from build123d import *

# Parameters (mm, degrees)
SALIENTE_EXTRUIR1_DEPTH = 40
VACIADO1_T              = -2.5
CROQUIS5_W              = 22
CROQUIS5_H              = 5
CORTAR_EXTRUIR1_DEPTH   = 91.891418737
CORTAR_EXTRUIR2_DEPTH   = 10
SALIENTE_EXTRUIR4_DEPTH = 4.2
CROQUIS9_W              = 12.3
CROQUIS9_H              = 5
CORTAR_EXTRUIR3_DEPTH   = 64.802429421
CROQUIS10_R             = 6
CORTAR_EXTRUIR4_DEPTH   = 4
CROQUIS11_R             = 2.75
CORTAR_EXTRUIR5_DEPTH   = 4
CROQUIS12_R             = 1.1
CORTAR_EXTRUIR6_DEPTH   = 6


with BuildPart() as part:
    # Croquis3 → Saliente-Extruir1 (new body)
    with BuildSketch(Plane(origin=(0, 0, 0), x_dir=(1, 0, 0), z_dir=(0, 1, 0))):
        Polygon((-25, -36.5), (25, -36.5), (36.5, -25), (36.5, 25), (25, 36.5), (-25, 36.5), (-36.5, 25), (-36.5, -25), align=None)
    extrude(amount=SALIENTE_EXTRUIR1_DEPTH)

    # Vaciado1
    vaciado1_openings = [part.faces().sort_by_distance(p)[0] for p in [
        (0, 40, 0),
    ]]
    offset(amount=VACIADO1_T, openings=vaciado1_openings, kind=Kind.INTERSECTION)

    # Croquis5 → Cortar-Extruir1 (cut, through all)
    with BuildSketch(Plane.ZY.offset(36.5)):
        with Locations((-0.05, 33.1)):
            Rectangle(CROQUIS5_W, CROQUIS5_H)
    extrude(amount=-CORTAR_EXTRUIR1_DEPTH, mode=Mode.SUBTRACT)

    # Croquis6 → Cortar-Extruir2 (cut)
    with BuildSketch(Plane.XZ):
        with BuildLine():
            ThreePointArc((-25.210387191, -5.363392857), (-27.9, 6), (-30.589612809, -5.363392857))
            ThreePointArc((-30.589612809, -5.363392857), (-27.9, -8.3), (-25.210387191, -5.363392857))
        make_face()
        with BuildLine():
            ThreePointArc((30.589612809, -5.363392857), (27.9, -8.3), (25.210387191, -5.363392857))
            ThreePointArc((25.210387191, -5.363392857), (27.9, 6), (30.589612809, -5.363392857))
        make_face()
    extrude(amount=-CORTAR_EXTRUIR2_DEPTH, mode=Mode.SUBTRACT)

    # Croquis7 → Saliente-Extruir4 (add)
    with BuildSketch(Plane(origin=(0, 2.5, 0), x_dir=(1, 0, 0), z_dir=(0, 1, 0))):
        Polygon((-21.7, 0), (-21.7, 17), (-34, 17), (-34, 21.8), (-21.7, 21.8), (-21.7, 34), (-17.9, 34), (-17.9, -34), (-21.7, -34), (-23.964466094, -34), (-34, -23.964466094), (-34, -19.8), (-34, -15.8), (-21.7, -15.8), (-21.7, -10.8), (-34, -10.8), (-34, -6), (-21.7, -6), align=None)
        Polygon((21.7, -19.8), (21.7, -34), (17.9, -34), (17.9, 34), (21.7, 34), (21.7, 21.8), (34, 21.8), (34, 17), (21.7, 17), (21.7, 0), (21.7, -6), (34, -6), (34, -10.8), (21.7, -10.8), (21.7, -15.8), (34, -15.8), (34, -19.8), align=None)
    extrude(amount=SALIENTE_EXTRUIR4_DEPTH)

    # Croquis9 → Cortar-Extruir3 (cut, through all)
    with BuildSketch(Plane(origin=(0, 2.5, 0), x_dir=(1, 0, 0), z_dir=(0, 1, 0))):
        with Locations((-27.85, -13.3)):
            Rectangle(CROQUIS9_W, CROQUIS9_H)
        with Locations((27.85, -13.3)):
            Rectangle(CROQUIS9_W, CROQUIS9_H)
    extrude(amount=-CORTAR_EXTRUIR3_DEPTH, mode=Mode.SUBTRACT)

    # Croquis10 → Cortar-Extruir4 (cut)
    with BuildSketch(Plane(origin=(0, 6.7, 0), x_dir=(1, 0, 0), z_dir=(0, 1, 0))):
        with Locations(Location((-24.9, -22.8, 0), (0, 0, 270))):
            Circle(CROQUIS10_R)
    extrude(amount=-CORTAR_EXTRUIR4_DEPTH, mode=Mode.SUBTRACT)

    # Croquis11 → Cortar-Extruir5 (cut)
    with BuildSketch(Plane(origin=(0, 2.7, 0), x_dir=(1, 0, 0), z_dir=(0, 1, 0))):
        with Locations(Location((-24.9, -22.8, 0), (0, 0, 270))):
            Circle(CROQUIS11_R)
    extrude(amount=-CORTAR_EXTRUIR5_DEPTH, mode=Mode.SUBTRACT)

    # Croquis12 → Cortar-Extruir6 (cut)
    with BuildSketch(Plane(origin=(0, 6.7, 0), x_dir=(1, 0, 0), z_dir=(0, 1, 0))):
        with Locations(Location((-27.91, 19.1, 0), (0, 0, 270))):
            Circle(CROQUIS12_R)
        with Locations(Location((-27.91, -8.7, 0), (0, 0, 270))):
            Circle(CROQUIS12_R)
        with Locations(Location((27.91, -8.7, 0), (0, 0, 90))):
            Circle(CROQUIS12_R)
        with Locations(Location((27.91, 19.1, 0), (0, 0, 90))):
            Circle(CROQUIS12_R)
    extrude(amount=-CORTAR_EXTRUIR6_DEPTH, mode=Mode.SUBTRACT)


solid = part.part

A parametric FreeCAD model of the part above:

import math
import FreeCAD as App
import Part
import Sketcher
Q = App.Units.Quantity


def faces_at(feature, points):
    """Names of the faces that lie closest to the given points."""
    faces = feature.Shape.Faces
    near = lambda p: min(range(len(faces)), key=lambda i: faces[i].distToShape(Part.Vertex(*p))[0])
    return sorted({f"Face{near(p) + 1}" for p in points})

doc = App.newDocument("Part")
body = doc.addObject("PartDesign::Body", "Body")

# Sketch on XZ plane
sketch1 = body.newObject("Sketcher::SketchObject", "Sketch")
sketch1.AttachmentSupport = (doc.getObject("XZ_Plane"), [""])
sketch1.MapMode = "FlatFace"
sketch1.addGeometry(Part.LineSegment(App.Vector(-25, 36, 0), App.Vector(25, 36, 0)), False)
sketch1.addGeometry(Part.LineSegment(App.Vector(25, 36, 0), App.Vector(36, 25, 0)), False)
sketch1.addGeometry(Part.LineSegment(App.Vector(36, 25, 0), App.Vector(36, -25, 0)), False)
sketch1.addGeometry(Part.LineSegment(App.Vector(36, -25, 0), App.Vector(25, -36, 0)), False)
sketch1.addGeometry(Part.LineSegment(App.Vector(25, -36, 0), App.Vector(-25, -36, 0)), False)
sketch1.addGeometry(Part.LineSegment(App.Vector(-25, -36, 0), App.Vector(-36, -25, 0)), False)
sketch1.addGeometry(Part.LineSegment(App.Vector(-36, -25, 0), App.Vector(-36, 25, 0)), False)
sketch1.addGeometry(Part.LineSegment(App.Vector(-36, 25, 0), App.Vector(-25, 36, 0)), False)
sketch1.addConstraint(Sketcher.Constraint("Coincident", 0, 2, 1, 1))
sketch1.addConstraint(Sketcher.Constraint("Coincident", 1, 2, 2, 1))
sketch1.addConstraint(Sketcher.Constraint("Coincident", 2, 2, 3, 1))
sketch1.addConstraint(Sketcher.Constraint("Coincident", 3, 2, 4, 1))
sketch1.addConstraint(Sketcher.Constraint("Coincident", 4, 2, 5, 1))
sketch1.addConstraint(Sketcher.Constraint("Coincident", 5, 2, 6, 1))
sketch1.addConstraint(Sketcher.Constraint("Coincident", 6, 2, 7, 1))
sketch1.addConstraint(Sketcher.Constraint("Coincident", 7, 2, 0, 1))
sketch1.addConstraint(Sketcher.Constraint("Horizontal", 0))
sketch1.addConstraint(Sketcher.Constraint("Vertical", 2))
sketch1.addConstraint(Sketcher.Constraint("Horizontal", 4))
sketch1.addConstraint(Sketcher.Constraint("Vertical", 6))
sketch1.addConstraint(Sketcher.Constraint("Symmetric", 0, 2, 4, 2, -1, 1))
sketch1.addConstraint(Sketcher.Constraint("Symmetric", 1, 2, 5, 2, -1, 1))
sketch1.addConstraint(Sketcher.Constraint("Perpendicular", 1, 3))
sketch1.addConstraint(Sketcher.Constraint("Perpendicular", 5, 7))
sketch1.addConstraint(Sketcher.Constraint("Horizontal", 2, 2, 5, 2))
sketch1.addConstraint(Sketcher.Constraint("Horizontal", 1, 2, 6, 2))
sketch1.addConstraint(Sketcher.Constraint("Vertical", 0, 2, 3, 2))
sketch1.addConstraint(Sketcher.Constraint("Equal", 4, 2))
sketch1.addConstraint(Sketcher.Constraint("DistanceX", 0, 1, 0, 2, Q("50 mm")))
sketch1.addConstraint(Sketcher.Constraint("DistanceY", 3, 2, 0, 2, Q("73 mm")))
pad1 = body.newObject("PartDesign::Pad", "Pad")
pad1.Profile = sketch1
pad1.Length = 40
pad1.Reversed = True
doc.recompute()

thickness = body.newObject("PartDesign::Thickness", "Thickness")
thickness.Base = (pad1, faces_at(pad1, [(0, 40, 0)]))
thickness.Value = 2.5
thickness.Reversed = True
thickness.Join = "Intersection"

# Sketch on YZ plane
sketch2 = body.newObject("Sketcher::SketchObject", "Sketch001")
sketch2.AttachmentSupport = (doc.getObject("YZ_Plane"), [""])
sketch2.MapMode = "FlatFace"
sketch2.AttachmentOffset = App.Placement(App.Vector(0, 0, -36.5), App.Rotation())
sketch2.addGeometry(Part.LineSegment(App.Vector(36, -11, 0), App.Vector(31, -11, 0)), False)
sketch2.addGeometry(Part.LineSegment(App.Vector(31, -11, 0), App.Vector(31, 11, 0)), False)
sketch2.addGeometry(Part.LineSegment(App.Vector(31, 11, 0), App.Vector(36, 11, 0)), False)
sketch2.addGeometry(Part.LineSegment(App.Vector(36, 11, 0), App.Vector(36, -11, 0)), False)
sketch2.addConstraint(Sketcher.Constraint("Coincident", 0, 2, 1, 1))
sketch2.addConstraint(Sketcher.Constraint("Coincident", 1, 2, 2, 1))
sketch2.addConstraint(Sketcher.Constraint("Coincident", 2, 2, 3, 1))
sketch2.addConstraint(Sketcher.Constraint("Coincident", 3, 2, 0, 1))
sketch2.addConstraint(Sketcher.Constraint("Horizontal", 0))
sketch2.addConstraint(Sketcher.Constraint("Vertical", 1))
sketch2.addConstraint(Sketcher.Constraint("Horizontal", 2))
sketch2.addConstraint(Sketcher.Constraint("Vertical", 3))
sketch2.addConstraint(Sketcher.Constraint("DistanceX", 0, 2, 0, 1, Q("5 mm")))
sketch2.addConstraint(Sketcher.Constraint("DistanceY", 1, 1, 1, 2, Q("22 mm")))
sketch2.addConstraint(Sketcher.Constraint("DistanceX", -1, 1, 0, 2, Q("30.6 mm")))
sketch2.addConstraint(Sketcher.Constraint("DistanceY", 0, 2, -1, 1, Q("11.05 mm")))
pocket1 = body.newObject("PartDesign::Pocket", "Pocket")
pocket1.Profile = sketch2
pocket1.Type = "ThroughAll"
pocket1.Reversed = True

# Sketch on XZ plane
sketch3 = body.newObject("Sketcher::SketchObject", "Sketch002")
sketch3.AttachmentSupport = (doc.getObject("XZ_Plane"), [""])
sketch3.MapMode = "FlatFace"
sketch3.addGeometry(Part.ArcOfCircle(Part.Circle(App.Vector(-27.9, 0, 0), App.Vector(0, 0, 1), 6), math.radians(-63), math.radians(243)), False)
sketch3.addGeometry(Part.ArcOfCircle(Part.Circle(App.Vector(-27.9, -5.6, 0), App.Vector(0, 0, 1), 2.7), math.radians(175), math.radians(365)), False)
sketch3.addGeometry(Part.ArcOfCircle(Part.Circle(App.Vector(27.9, -5.6, 0), App.Vector(0, 0, 1), 2.7), math.radians(175), math.radians(365)), False)
sketch3.addGeometry(Part.ArcOfCircle(Part.Circle(App.Vector(27.9, 0, 0), App.Vector(0, 0, 1), 6), math.radians(-63), math.radians(243)), False)
sketch3.addConstraint(Sketcher.Constraint("Coincident", 0, 1, 1, 2))
sketch3.addConstraint(Sketcher.Constraint("Coincident", 1, 1, 0, 2))
sketch3.addConstraint(Sketcher.Constraint("Coincident", 2, 1, 3, 2))
sketch3.addConstraint(Sketcher.Constraint("Coincident", 3, 1, 2, 2))
sketch3.addConstraint(Sketcher.Constraint("Equal", 1, 2))
sketch3.addConstraint(Sketcher.Constraint("Equal", 0, 3))
sketch3.addConstraint(Sketcher.Constraint("Symmetric", 0, 3, 3, 3, -1, 1))
sketch3.addConstraint(Sketcher.Constraint("Symmetric", 1, 3, 2, 3, -2))
sketch3.addConstraint(Sketcher.Constraint("PointOnObject", 0, 3, -1))
sketch3.addConstraint(Sketcher.Constraint("Horizontal", 0, 1, 1, 1))
sketch3.addConstraint(Sketcher.Constraint("Radius", 0, Q("6 mm")))
sketch3.addConstraint(Sketcher.Constraint("Radius", 1, Q("2.7 mm")))
sketch3.addConstraint(Sketcher.Constraint("DistanceX", 0, 3, -1, 1, Q("27.9 mm")))
sketch3.addConstraint(Sketcher.Constraint("DistanceY", 1, 3, -1, 1, Q("5.6 mm")))
pocket2 = body.newObject("PartDesign::Pocket", "Pocket001")
pocket2.Profile = sketch3
pocket2.Length = 10

# Sketch on XZ plane
sketch4 = body.newObject("Sketcher::SketchObject", "Sketch003")
sketch4.AttachmentSupport = (doc.getObject("XZ_Plane"), [""])
sketch4.MapMode = "FlatFace"
sketch4.AttachmentOffset = App.Placement(App.Vector(0, 0, -2.5), App.Rotation())
sketch4.addGeometry(Part.LineSegment(App.Vector(-21.7, -17, 0), App.Vector(-21.7, 6, 0)), False)
sketch4.addGeometry(Part.LineSegment(App.Vector(-21.7, 6, 0), App.Vector(-34, 6, 0)), False)
sketch4.addGeometry(Part.LineSegment(App.Vector(-34, 6, 0), App.Vector(-34, 10.8, 0)), False)
sketch4.addGeometry(Part.LineSegment(App.Vector(-34, 10.8, 0), App.Vector(-21.7, 10.8, 0)), False)
sketch4.addGeometry(Part.LineSegment(App.Vector(-21.7, 10.8, 0), App.Vector(-21.7, 15.8, 0)), False)
sketch4.addGeometry(Part.LineSegment(App.Vector(-21.7, 15.8, 0), App.Vector(-34, 15.8, 0)), False)
sketch4.addGeometry(Part.LineSegment(App.Vector(-34, 15.8, 0), App.Vector(-34, 24, 0)), False)
sketch4.addGeometry(Part.LineSegment(App.Vector(-34, 24, 0), App.Vector(-24, 34, 0)), False)
sketch4.addGeometry(Part.LineSegment(App.Vector(-24, 34, 0), App.Vector(-17.9, 34, 0)), False)
sketch4.addGeometry(Part.LineSegment(App.Vector(-17.9, 34, 0), App.Vector(-17.9, -34, 0)), False)
sketch4.addGeometry(Part.LineSegment(App.Vector(-17.9, -34, 0), App.Vector(-21.7, -34, 0)), False)
sketch4.addGeometry(Part.LineSegment(App.Vector(-21.7, -34, 0), App.Vector(-21.7, -21.8, 0)), False)
sketch4.addGeometry(Part.LineSegment(App.Vector(-21.7, -21.8, 0), App.Vector(-34, -21.8, 0)), False)
sketch4.addGeometry(Part.LineSegment(App.Vector(-34, -21.8, 0), App.Vector(-34, -17, 0)), False)
sketch4.addGeometry(Part.LineSegment(App.Vector(-34, -17, 0), App.Vector(-21.7, -17, 0)), False)
sketch4.addGeometry(Part.LineSegment(App.Vector(21.7, 34, 0), App.Vector(21.7, 19.8, 0)), False)
sketch4.addGeometry(Part.LineSegment(App.Vector(21.7, 19.8, 0), App.Vector(34, 19.8, 0)), False)
sketch4.addGeometry(Part.LineSegment(App.Vector(34, 19.8, 0), App.Vector(34, 15.8, 0)), False)
sketch4.addGeometry(Part.LineSegment(App.Vector(34, 15.8, 0), App.Vector(21.7, 15.8, 0)), False)
sketch4.addGeometry(Part.LineSegment(App.Vector(21.7, 15.8, 0), App.Vector(21.7, 10.8, 0)), False)
sketch4.addGeometry(Part.LineSegment(App.Vector(21.7, 10.8, 0), App.Vector(34, 10.8, 0)), False)
sketch4.addGeometry(Part.LineSegment(App.Vector(34, 10.8, 0), App.Vector(34, 6, 0)), False)
sketch4.addGeometry(Part.LineSegment(App.Vector(34, 6, 0), App.Vector(21.7, 6, 0)), False)
sketch4.addGeometry(Part.LineSegment(App.Vector(21.7, 6, 0), App.Vector(21.7, -17, 0)), False)
sketch4.addGeometry(Part.LineSegment(App.Vector(21.7, -17, 0), App.Vector(34, -17, 0)), False)
sketch4.addGeometry(Part.LineSegment(App.Vector(34, -17, 0), App.Vector(34, -21.8, 0)), False)
sketch4.addGeometry(Part.LineSegment(App.Vector(34, -21.8, 0), App.Vector(21.7, -21.8, 0)), False)
sketch4.addGeometry(Part.LineSegment(App.Vector(21.7, -21.8, 0), App.Vector(21.7, -34, 0)), False)
sketch4.addGeometry(Part.LineSegment(App.Vector(21.7, -34, 0), App.Vector(17.9, -34, 0)), False)
sketch4.addGeometry(Part.LineSegment(App.Vector(17.9, -34, 0), App.Vector(17.9, 34, 0)), False)
sketch4.addGeometry(Part.LineSegment(App.Vector(17.9, 34, 0), App.Vector(21.7, 34, 0)), False)
sketch4.addConstraint(Sketcher.Constraint("Coincident", 0, 2, 1, 1))
sketch4.addConstraint(Sketcher.Constraint("Coincident", 1, 2, 2, 1))
sketch4.addConstraint(Sketcher.Constraint("Coincident", 2, 2, 3, 1))
sketch4.addConstraint(Sketcher.Constraint("Coincident", 3, 2, 4, 1))
sketch4.addConstraint(Sketcher.Constraint("Coincident", 4, 2, 5, 1))
sketch4.addConstraint(Sketcher.Constraint("Coincident", 5, 2, 6, 1))
sketch4.addConstraint(Sketcher.Constraint("Coincident", 6, 2, 7, 1))
sketch4.addConstraint(Sketcher.Constraint("Coincident", 7, 2, 8, 1))
sketch4.addConstraint(Sketcher.Constraint("Coincident", 8, 2, 9, 1))
sketch4.addConstraint(Sketcher.Constraint("Coincident", 9, 2, 10, 1))
sketch4.addConstraint(Sketcher.Constraint("Coincident", 10, 2, 11, 1))
sketch4.addConstraint(Sketcher.Constraint("Coincident", 11, 2, 12, 1))
sketch4.addConstraint(Sketcher.Constraint("Coincident", 12, 2, 13, 1))
sketch4.addConstraint(Sketcher.Constraint("Coincident", 13, 2, 14, 1))
sketch4.addConstraint(Sketcher.Constraint("Coincident", 14, 2, 0, 1))
sketch4.addConstraint(Sketcher.Constraint("Coincident", 15, 2, 16, 1))
sketch4.addConstraint(Sketcher.Constraint("Coincident", 16, 2, 17, 1))
sketch4.addConstraint(Sketcher.Constraint("Coincident", 17, 2, 18, 1))
sketch4.addConstraint(Sketcher.Constraint("Coincident", 18, 2, 19, 1))
sketch4.addConstraint(Sketcher.Constraint("Coincident", 19, 2, 20, 1))
sketch4.addConstraint(Sketcher.Constraint("Coincident", 20, 2, 21, 1))
sketch4.addConstraint(Sketcher.Constraint("Coincident", 21, 2, 22, 1))
sketch4.addConstraint(Sketcher.Constraint("Coincident", 22, 2, 23, 1))
sketch4.addConstraint(Sketcher.Constraint("Coincident", 23, 2, 24, 1))
sketch4.addConstraint(Sketcher.Constraint("Coincident", 24, 2, 25, 1))
sketch4.addConstraint(Sketcher.Constraint("Coincident", 25, 2, 26, 1))
sketch4.addConstraint(Sketcher.Constraint("Coincident", 26, 2, 27, 1))
sketch4.addConstraint(Sketcher.Constraint("Coincident", 27, 2, 28, 1))
sketch4.addConstraint(Sketcher.Constraint("Coincident", 28, 2, 29, 1))
sketch4.addConstraint(Sketcher.Constraint("Coincident", 29, 2, 30, 1))
sketch4.addConstraint(Sketcher.Constraint("Coincident", 30, 2, 15, 1))
sketch4.addConstraint(Sketcher.Constraint("Vertical", 0))
sketch4.addConstraint(Sketcher.Constraint("Horizontal", 1))
sketch4.addConstraint(Sketcher.Constraint("Vertical", 2))
sketch4.addConstraint(Sketcher.Constraint("Horizontal", 3))
sketch4.addConstraint(Sketcher.Constraint("Vertical", 4))
sketch4.addConstraint(Sketcher.Constraint("Horizontal", 5))
sketch4.addConstraint(Sketcher.Constraint("Vertical", 6))
sketch4.addConstraint(Sketcher.Constraint("Horizontal", 8))
sketch4.addConstraint(Sketcher.Constraint("Vertical", 9))
sketch4.addConstraint(Sketcher.Constraint("Horizontal", 10))
sketch4.addConstraint(Sketcher.Constraint("Vertical", 11))
sketch4.addConstraint(Sketcher.Constraint("Horizontal", 12))
sketch4.addConstraint(Sketcher.Constraint("Vertical", 13))
sketch4.addConstraint(Sketcher.Constraint("Horizontal", 14))
sketch4.addConstraint(Sketcher.Constraint("Vertical", 15))
sketch4.addConstraint(Sketcher.Constraint("Horizontal", 16))
sketch4.addConstraint(Sketcher.Constraint("Vertical", 17))
sketch4.addConstraint(Sketcher.Constraint("Horizontal", 18))
sketch4.addConstraint(Sketcher.Constraint("Vertical", 19))
sketch4.addConstraint(Sketcher.Constraint("Horizontal", 20))
sketch4.addConstraint(Sketcher.Constraint("Vertical", 21))
sketch4.addConstraint(Sketcher.Constraint("Horizontal", 22))
sketch4.addConstraint(Sketcher.Constraint("Vertical", 23))
sketch4.addConstraint(Sketcher.Constraint("Horizontal", 24))
sketch4.addConstraint(Sketcher.Constraint("Vertical", 25))
sketch4.addConstraint(Sketcher.Constraint("Horizontal", 26))
sketch4.addConstraint(Sketcher.Constraint("Vertical", 27))
sketch4.addConstraint(Sketcher.Constraint("Horizontal", 28))
sketch4.addConstraint(Sketcher.Constraint("Vertical", 29))
sketch4.addConstraint(Sketcher.Constraint("Horizontal", 30))
sketch4.addConstraint(Sketcher.Constraint("Symmetric", 8, 2, 28, 2, -1, 1))
sketch4.addConstraint(Sketcher.Constraint("Symmetric", 10, 2, 30, 2, -1, 1))
sketch4.addConstraint(Sketcher.Constraint("Symmetric", 5, 2, 17, 2, -2))
sketch4.addConstraint(Sketcher.Constraint("Symmetric", 3, 2, 19, 2, -2))
sketch4.addConstraint(Sketcher.Constraint("Symmetric", 1, 2, 21, 2, -2))
sketch4.addConstraint(Sketcher.Constraint("Symmetric", 14, 2, 23, 2, -2))
sketch4.addConstraint(Sketcher.Constraint("Symmetric", 12, 2, 25, 2, -2))
sketch4.addConstraint(Sketcher.Constraint("Symmetric", 10, 2, 27, 2, -2))
sketch4.addConstraint(Sketcher.Constraint("Vertical", 0, 2, 3, 2))
sketch4.addConstraint(Sketcher.Constraint("Vertical", 2, 2, 5, 2))
sketch4.addConstraint(Sketcher.Constraint("Vertical", 4, 2, 10, 2))
sketch4.addConstraint(Sketcher.Constraint("Vertical", 6, 2, 12, 2))
sketch4.addConstraint(Sketcher.Constraint("Equal", 2, 13))
sketch4.addConstraint(Sketcher.Constraint("DistanceY", 0, 1, 0, 2, Q("23 mm")))
sketch4.addConstraint(Sketcher.Constraint("DistanceY", 4, 1, 4, 2, Q("5 mm")))
sketch4.addConstraint(Sketcher.Constraint("DistanceY", 9, 2, 9, 1, Q("68 mm")))
sketch4.addConstraint(Sketcher.Constraint("DistanceY", 17, 2, 17, 1, Q("4 mm")))
sketch4.addConstraint(Sketcher.Constraint("Angle", 7, Q("45 deg")))
sketch4.addConstraint(Sketcher.Constraint("DistanceX", 1, 2, 1, 1, Q("12.3 mm")))
sketch4.addConstraint(Sketcher.Constraint("DistanceX", 10, 2, 10, 1, Q("3.8 mm")))
sketch4.addConstraint(Sketcher.Constraint("DistanceY", 2, 1, 2, 2, Q("4.8 mm")))
sketch4.addConstraint(Sketcher.Constraint("DistanceY", 11, 1, 11, 2, Q("12.2 mm")))
sketch4.addConstraint(Sketcher.Constraint("DistanceX", 1, 2, -1, 1, Q("34 mm")))
sketch4.addConstraint(Sketcher.Constraint("Distance", 7, Q("14.192388 mm")))
pad2 = body.newObject("PartDesign::Pad", "Pad001")
pad2.Profile = sketch4
pad2.Length = 4.2
pad2.Reversed = True

# Sketch on XZ plane
sketch5 = body.newObject("Sketcher::SketchObject", "Sketch004")
sketch5.AttachmentSupport = (doc.getObject("XZ_Plane"), [""])
sketch5.MapMode = "FlatFace"
sketch5.AttachmentOffset = App.Placement(App.Vector(0, 0, -2.5), App.Rotation())
sketch5.addGeometry(Part.LineSegment(App.Vector(-34, 11, 0), App.Vector(-34, 16, 0)), False)
sketch5.addGeometry(Part.LineSegment(App.Vector(-34, 16, 0), App.Vector(-22, 16, 0)), False)
sketch5.addGeometry(Part.LineSegment(App.Vector(-22, 16, 0), App.Vector(-22, 11, 0)), False)
sketch5.addGeometry(Part.LineSegment(App.Vector(-22, 11, 0), App.Vector(-34, 11, 0)), False)
sketch5.addGeometry(Part.LineSegment(App.Vector(22, 11, 0), App.Vector(22, 16, 0)), False)
sketch5.addGeometry(Part.LineSegment(App.Vector(22, 16, 0), App.Vector(34, 16, 0)), False)
sketch5.addGeometry(Part.LineSegment(App.Vector(34, 16, 0), App.Vector(34, 11, 0)), False)
sketch5.addGeometry(Part.LineSegment(App.Vector(34, 11, 0), App.Vector(22, 11, 0)), False)
sketch5.addConstraint(Sketcher.Constraint("Coincident", 0, 2, 1, 1))
sketch5.addConstraint(Sketcher.Constraint("Coincident", 1, 2, 2, 1))
sketch5.addConstraint(Sketcher.Constraint("Coincident", 2, 2, 3, 1))
sketch5.addConstraint(Sketcher.Constraint("Coincident", 3, 2, 0, 1))
sketch5.addConstraint(Sketcher.Constraint("Coincident", 4, 2, 5, 1))
sketch5.addConstraint(Sketcher.Constraint("Coincident", 5, 2, 6, 1))
sketch5.addConstraint(Sketcher.Constraint("Coincident", 6, 2, 7, 1))
sketch5.addConstraint(Sketcher.Constraint("Coincident", 7, 2, 4, 1))
sketch5.addConstraint(Sketcher.Constraint("Vertical", 0))
sketch5.addConstraint(Sketcher.Constraint("Horizontal", 1))
sketch5.addConstraint(Sketcher.Constraint("Vertical", 2))
sketch5.addConstraint(Sketcher.Constraint("Horizontal", 3))
sketch5.addConstraint(Sketcher.Constraint("Vertical", 4))
sketch5.addConstraint(Sketcher.Constraint("Horizontal", 5))
sketch5.addConstraint(Sketcher.Constraint("Vertical", 6))
sketch5.addConstraint(Sketcher.Constraint("Horizontal", 7))
sketch5.addConstraint(Sketcher.Constraint("Symmetric", 1, 2, 4, 2, -2))
sketch5.addConstraint(Sketcher.Constraint("Symmetric", 3, 2, 6, 2, -2))
sketch5.addConstraint(Sketcher.Constraint("DistanceY", 0, 1, 0, 2, Q("5 mm")))
sketch5.addConstraint(Sketcher.Constraint("DistanceX", 1, 1, 1, 2, Q("12.3 mm")))
sketch5.addConstraint(Sketcher.Constraint("DistanceX", 0, 2, -1, 1, Q("34 mm")))
sketch5.addConstraint(Sketcher.Constraint("DistanceY", -1, 1, 0, 2, Q("15.8 mm")))
pocket3 = body.newObject("PartDesign::Pocket", "Pocket002")
pocket3.Profile = sketch5
pocket3.Type = "ThroughAll"
pocket3.Reversed = True

# Sketch on XZ plane
sketch6 = body.newObject("Sketcher::SketchObject", "Sketch005")
sketch6.AttachmentSupport = (doc.getObject("XZ_Plane"), [""])
sketch6.MapMode = "FlatFace"
sketch6.AttachmentOffset = App.Placement(App.Vector(0, 0, -6.7), App.Rotation())
sketch6.addGeometry(Part.Circle(App.Vector(-25, 23, 0), App.Vector(0, 0, 1), 6), False)
sketch6.addConstraint(Sketcher.Constraint("Diameter", 0, Q("12 mm")))
sketch6.addConstraint(Sketcher.Constraint("DistanceX", 0, 3, -1, 1, Q("24.9 mm")))
sketch6.addConstraint(Sketcher.Constraint("DistanceY", -1, 1, 0, 3, Q("22.8 mm")))
pocket4 = body.newObject("PartDesign::Pocket", "Pocket003")
pocket4.Profile = sketch6
pocket4.Length = 4
pocket4.Reversed = True

# Sketch on XZ plane
sketch7 = body.newObject("Sketcher::SketchObject", "Sketch006")
sketch7.AttachmentSupport = (doc.getObject("XZ_Plane"), [""])
sketch7.MapMode = "FlatFace"
sketch7.AttachmentOffset = App.Placement(App.Vector(0, 0, -2.7), App.Rotation())
sketch7.addGeometry(Part.Circle(App.Vector(-24.9, 22.8, 0), App.Vector(0, 0, 1), 2.8), False)
sketch7.addConstraint(Sketcher.Constraint("Diameter", 0, Q("5.5 mm")))
sketch7.addConstraint(Sketcher.Constraint("DistanceX", 0, 3, -1, 1, Q("24.9 mm")))
sketch7.addConstraint(Sketcher.Constraint("DistanceY", -1, 1, 0, 3, Q("22.8 mm")))
pocket5 = body.newObject("PartDesign::Pocket", "Pocket004")
pocket5.Profile = sketch7
pocket5.Length = 4
pocket5.Reversed = True

# Sketch on XZ plane
sketch8 = body.newObject("Sketcher::SketchObject", "Sketch007")
sketch8.AttachmentSupport = (doc.getObject("XZ_Plane"), [""])
sketch8.MapMode = "FlatFace"
sketch8.AttachmentOffset = App.Placement(App.Vector(0, 0, -6.7), App.Rotation())
sketch8.addGeometry(Part.Circle(App.Vector(-27.9, -19.1, 0), App.Vector(0, 0, 1), 1.1), False)
sketch8.addGeometry(Part.Circle(App.Vector(-27.9, 8.7, 0), App.Vector(0, 0, 1), 1.1), False)
sketch8.addGeometry(Part.Circle(App.Vector(27.9, 8.7, 0), App.Vector(0, 0, 1), 1.1), False)
sketch8.addGeometry(Part.Circle(App.Vector(27.9, -19.1, 0), App.Vector(0, 0, 1), 1.1), False)
sketch8.addConstraint(Sketcher.Constraint("Equal", 0, 1))
sketch8.addConstraint(Sketcher.Constraint("Equal", 1, 2))
sketch8.addConstraint(Sketcher.Constraint("Equal", 2, 3))
sketch8.addConstraint(Sketcher.Constraint("Symmetric", 1, 3, 2, 3, -2))
sketch8.addConstraint(Sketcher.Constraint("Symmetric", 0, 3, 3, 3, -2))
sketch8.addConstraint(Sketcher.Constraint("Vertical", 0, 3, 1, 3))
sketch8.addConstraint(Sketcher.Constraint("Diameter", 0, Q("2.2 mm")))
sketch8.addConstraint(Sketcher.Constraint("DistanceY", 0, 3, -1, 1, Q("19.1 mm")))
sketch8.addConstraint(Sketcher.Constraint("DistanceY", -1, 1, 1, 3, Q("8.7 mm")))
sketch8.addConstraint(Sketcher.Constraint("DistanceX", 0, 3, -1, 1, Q("27.91 mm")))
pocket6 = body.newObject("PartDesign::Pocket", "Pocket005")
pocket6.Profile = sketch8
pocket6.Length = 6
pocket6.Reversed = True

doc.recompute()
